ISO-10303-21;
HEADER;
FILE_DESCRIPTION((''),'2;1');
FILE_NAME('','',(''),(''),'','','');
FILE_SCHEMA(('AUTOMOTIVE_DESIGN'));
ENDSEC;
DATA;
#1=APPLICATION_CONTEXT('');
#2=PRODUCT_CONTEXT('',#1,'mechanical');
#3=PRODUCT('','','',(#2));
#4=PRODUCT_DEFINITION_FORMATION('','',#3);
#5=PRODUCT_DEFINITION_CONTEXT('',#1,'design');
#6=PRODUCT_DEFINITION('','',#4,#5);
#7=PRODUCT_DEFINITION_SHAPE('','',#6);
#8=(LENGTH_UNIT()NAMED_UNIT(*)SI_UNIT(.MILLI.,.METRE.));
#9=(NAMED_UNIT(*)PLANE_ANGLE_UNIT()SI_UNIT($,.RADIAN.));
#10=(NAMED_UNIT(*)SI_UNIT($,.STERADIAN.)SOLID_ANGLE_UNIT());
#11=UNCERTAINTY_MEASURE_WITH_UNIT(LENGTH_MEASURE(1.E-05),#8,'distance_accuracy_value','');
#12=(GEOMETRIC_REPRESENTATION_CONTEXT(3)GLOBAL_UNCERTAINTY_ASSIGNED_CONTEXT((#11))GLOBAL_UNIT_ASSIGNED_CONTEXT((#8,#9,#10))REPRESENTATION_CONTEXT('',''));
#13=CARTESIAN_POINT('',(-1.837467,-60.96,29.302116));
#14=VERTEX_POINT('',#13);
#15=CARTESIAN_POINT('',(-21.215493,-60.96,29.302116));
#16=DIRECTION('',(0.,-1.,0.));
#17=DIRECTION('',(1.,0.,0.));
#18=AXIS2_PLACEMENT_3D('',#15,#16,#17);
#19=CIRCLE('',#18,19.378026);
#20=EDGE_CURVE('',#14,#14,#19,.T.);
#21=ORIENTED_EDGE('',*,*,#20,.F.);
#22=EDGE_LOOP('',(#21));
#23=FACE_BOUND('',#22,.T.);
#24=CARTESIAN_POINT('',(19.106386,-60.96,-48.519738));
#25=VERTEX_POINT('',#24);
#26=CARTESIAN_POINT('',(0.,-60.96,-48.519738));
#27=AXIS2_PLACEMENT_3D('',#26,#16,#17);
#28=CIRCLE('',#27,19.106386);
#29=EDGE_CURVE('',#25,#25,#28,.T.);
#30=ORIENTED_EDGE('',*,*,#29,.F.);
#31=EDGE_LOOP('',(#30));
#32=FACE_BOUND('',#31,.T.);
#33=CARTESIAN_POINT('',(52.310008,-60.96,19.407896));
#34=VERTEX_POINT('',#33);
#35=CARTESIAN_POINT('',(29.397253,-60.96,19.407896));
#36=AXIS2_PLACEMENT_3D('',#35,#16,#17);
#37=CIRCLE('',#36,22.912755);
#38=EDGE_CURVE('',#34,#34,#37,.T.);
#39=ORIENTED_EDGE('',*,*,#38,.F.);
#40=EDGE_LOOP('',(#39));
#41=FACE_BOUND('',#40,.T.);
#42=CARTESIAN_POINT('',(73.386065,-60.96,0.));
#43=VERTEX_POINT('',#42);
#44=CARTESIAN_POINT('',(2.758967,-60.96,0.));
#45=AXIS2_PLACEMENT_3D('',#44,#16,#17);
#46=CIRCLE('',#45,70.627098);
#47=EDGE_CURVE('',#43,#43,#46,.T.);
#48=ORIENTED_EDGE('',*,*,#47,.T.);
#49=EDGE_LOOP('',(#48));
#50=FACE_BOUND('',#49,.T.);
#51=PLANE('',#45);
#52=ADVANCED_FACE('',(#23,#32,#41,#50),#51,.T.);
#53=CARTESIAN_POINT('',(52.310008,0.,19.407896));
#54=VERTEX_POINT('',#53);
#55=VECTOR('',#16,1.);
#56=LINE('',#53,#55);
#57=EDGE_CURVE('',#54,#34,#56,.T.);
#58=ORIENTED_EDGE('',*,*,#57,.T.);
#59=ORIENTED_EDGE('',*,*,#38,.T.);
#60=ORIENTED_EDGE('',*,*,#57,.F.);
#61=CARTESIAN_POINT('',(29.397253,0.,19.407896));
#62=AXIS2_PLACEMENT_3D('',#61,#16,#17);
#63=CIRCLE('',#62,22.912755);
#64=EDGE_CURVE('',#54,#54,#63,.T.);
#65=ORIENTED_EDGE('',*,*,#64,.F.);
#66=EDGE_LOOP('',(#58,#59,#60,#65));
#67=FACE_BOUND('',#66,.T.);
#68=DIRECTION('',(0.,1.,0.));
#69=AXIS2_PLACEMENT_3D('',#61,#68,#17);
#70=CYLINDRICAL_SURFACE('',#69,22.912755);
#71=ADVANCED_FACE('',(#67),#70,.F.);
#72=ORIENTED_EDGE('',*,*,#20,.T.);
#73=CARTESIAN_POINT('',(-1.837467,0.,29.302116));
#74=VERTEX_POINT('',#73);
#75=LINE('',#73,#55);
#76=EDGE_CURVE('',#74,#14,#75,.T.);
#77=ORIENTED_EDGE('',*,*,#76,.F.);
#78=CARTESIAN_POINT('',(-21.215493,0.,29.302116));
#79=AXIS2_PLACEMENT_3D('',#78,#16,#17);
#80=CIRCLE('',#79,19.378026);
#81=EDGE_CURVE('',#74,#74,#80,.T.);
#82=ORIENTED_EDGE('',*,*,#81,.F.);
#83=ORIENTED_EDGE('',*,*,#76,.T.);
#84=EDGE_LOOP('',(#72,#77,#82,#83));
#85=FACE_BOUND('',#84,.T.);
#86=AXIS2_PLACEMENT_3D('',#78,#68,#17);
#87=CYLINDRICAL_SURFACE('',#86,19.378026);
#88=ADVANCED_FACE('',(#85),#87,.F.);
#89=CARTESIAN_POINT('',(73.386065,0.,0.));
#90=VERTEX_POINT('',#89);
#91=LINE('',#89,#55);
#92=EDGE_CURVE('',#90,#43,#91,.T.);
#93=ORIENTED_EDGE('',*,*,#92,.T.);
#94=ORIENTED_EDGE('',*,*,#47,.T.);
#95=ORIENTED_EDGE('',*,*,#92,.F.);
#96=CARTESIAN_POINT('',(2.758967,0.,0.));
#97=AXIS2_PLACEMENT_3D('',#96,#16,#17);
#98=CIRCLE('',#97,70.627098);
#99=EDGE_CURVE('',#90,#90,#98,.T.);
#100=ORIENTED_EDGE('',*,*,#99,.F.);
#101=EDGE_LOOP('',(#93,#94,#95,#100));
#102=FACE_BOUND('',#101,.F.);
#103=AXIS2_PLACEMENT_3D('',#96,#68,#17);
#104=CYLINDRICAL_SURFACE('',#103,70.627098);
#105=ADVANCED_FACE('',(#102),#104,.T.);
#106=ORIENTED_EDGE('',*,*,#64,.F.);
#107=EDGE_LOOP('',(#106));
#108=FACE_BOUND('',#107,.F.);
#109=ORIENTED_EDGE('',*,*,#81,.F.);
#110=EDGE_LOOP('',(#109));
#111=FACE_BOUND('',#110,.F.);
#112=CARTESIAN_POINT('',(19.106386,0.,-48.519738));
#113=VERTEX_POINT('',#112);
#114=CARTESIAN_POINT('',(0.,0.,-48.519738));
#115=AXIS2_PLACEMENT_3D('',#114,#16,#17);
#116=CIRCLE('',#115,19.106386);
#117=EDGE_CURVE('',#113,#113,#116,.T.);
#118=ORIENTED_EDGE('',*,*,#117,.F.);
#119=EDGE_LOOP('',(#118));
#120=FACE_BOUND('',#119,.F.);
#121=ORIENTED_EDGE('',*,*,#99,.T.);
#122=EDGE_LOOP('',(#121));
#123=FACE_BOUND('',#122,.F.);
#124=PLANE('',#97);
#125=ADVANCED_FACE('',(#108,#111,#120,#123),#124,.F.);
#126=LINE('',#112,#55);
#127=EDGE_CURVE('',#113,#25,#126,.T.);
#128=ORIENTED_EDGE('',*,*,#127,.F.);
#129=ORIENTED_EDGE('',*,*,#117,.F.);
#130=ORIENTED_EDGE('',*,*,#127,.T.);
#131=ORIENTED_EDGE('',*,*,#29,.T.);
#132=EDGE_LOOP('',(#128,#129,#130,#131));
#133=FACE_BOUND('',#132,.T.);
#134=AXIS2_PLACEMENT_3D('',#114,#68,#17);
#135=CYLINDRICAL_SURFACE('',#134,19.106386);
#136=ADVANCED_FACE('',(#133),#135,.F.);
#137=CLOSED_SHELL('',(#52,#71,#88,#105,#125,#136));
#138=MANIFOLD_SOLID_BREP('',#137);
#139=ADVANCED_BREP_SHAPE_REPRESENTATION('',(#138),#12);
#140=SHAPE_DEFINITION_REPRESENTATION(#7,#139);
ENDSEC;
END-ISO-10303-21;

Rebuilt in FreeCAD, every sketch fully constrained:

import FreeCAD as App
import Part
import Sketcher

V = App.Vector

doc = App.newDocument("Part")
params = doc.addObject("Spreadsheet::Sheet", "Params")
for row, (alias, value) in enumerate([
    ("pad1_length", "2.4 in"),
], start=1):
    params.set(f"A{row}", alias)
    params.set(f"B{row}", "=" + value)
    params.setAlias(f"B{row}", alias)

body = doc.addObject("PartDesign::Body", "Body")

sketch1 = body.newObject("Sketcher::SketchObject", "Sketch")
sketch1.AttachmentSupport = (doc.getObject("XZ_Plane"), [""])
sketch1.MapMode = "FlatFace"
sketch1.addGeometry([
    Part.Circle(V(3, 0, 0), V(0, 0, 1), 71),
    Part.Circle(V(0, -49, 0), V(0, 0, 1), 19),
    Part.Circle(V(-21, 29, 0), V(0, 0, 1), 19),
    Part.Circle(V(29, 19, 0), V(0, 0, 1), 23),
], False)
sketch1.addConstraint([
    Sketcher.Constraint("PointOnObject", 0, 3, -1),
    Sketcher.Constraint("PointOnObject", 1, 3, -2),
    Sketcher.Constraint("Diameter", 2, 38.756052),
    Sketcher.Constraint("Diameter", 3, 45.82551),
    Sketcher.Constraint("Diameter", 0, 141.254196),
    Sketcher.Constraint("Diameter", 1, 38.212772),
    Sketcher.Constraint("DistanceX", 2, 3, 0, 3, 23.97446),
    Sketcher.Constraint("DistanceY", 3, 3, 2, 3, 9.89422),
    Sketcher.Constraint("DistanceX", -1, 1, 0, 3, 2.758967),
    Sketcher.Constraint("DistanceY", 1, 3, -1, 1, 48.519738),
    Sketcher.Constraint("DistanceY", -1, 1, 2, 3, 29.302116),
    Sketcher.Constraint("DistanceX", -1, 1, 3, 3, 29.397253),
])
pad1 = body.newObject("PartDesign::Pad", "Pad")
pad1.Profile = sketch1
pad1.setExpression("Length", "Params.pad1_length")

doc.recompute()
